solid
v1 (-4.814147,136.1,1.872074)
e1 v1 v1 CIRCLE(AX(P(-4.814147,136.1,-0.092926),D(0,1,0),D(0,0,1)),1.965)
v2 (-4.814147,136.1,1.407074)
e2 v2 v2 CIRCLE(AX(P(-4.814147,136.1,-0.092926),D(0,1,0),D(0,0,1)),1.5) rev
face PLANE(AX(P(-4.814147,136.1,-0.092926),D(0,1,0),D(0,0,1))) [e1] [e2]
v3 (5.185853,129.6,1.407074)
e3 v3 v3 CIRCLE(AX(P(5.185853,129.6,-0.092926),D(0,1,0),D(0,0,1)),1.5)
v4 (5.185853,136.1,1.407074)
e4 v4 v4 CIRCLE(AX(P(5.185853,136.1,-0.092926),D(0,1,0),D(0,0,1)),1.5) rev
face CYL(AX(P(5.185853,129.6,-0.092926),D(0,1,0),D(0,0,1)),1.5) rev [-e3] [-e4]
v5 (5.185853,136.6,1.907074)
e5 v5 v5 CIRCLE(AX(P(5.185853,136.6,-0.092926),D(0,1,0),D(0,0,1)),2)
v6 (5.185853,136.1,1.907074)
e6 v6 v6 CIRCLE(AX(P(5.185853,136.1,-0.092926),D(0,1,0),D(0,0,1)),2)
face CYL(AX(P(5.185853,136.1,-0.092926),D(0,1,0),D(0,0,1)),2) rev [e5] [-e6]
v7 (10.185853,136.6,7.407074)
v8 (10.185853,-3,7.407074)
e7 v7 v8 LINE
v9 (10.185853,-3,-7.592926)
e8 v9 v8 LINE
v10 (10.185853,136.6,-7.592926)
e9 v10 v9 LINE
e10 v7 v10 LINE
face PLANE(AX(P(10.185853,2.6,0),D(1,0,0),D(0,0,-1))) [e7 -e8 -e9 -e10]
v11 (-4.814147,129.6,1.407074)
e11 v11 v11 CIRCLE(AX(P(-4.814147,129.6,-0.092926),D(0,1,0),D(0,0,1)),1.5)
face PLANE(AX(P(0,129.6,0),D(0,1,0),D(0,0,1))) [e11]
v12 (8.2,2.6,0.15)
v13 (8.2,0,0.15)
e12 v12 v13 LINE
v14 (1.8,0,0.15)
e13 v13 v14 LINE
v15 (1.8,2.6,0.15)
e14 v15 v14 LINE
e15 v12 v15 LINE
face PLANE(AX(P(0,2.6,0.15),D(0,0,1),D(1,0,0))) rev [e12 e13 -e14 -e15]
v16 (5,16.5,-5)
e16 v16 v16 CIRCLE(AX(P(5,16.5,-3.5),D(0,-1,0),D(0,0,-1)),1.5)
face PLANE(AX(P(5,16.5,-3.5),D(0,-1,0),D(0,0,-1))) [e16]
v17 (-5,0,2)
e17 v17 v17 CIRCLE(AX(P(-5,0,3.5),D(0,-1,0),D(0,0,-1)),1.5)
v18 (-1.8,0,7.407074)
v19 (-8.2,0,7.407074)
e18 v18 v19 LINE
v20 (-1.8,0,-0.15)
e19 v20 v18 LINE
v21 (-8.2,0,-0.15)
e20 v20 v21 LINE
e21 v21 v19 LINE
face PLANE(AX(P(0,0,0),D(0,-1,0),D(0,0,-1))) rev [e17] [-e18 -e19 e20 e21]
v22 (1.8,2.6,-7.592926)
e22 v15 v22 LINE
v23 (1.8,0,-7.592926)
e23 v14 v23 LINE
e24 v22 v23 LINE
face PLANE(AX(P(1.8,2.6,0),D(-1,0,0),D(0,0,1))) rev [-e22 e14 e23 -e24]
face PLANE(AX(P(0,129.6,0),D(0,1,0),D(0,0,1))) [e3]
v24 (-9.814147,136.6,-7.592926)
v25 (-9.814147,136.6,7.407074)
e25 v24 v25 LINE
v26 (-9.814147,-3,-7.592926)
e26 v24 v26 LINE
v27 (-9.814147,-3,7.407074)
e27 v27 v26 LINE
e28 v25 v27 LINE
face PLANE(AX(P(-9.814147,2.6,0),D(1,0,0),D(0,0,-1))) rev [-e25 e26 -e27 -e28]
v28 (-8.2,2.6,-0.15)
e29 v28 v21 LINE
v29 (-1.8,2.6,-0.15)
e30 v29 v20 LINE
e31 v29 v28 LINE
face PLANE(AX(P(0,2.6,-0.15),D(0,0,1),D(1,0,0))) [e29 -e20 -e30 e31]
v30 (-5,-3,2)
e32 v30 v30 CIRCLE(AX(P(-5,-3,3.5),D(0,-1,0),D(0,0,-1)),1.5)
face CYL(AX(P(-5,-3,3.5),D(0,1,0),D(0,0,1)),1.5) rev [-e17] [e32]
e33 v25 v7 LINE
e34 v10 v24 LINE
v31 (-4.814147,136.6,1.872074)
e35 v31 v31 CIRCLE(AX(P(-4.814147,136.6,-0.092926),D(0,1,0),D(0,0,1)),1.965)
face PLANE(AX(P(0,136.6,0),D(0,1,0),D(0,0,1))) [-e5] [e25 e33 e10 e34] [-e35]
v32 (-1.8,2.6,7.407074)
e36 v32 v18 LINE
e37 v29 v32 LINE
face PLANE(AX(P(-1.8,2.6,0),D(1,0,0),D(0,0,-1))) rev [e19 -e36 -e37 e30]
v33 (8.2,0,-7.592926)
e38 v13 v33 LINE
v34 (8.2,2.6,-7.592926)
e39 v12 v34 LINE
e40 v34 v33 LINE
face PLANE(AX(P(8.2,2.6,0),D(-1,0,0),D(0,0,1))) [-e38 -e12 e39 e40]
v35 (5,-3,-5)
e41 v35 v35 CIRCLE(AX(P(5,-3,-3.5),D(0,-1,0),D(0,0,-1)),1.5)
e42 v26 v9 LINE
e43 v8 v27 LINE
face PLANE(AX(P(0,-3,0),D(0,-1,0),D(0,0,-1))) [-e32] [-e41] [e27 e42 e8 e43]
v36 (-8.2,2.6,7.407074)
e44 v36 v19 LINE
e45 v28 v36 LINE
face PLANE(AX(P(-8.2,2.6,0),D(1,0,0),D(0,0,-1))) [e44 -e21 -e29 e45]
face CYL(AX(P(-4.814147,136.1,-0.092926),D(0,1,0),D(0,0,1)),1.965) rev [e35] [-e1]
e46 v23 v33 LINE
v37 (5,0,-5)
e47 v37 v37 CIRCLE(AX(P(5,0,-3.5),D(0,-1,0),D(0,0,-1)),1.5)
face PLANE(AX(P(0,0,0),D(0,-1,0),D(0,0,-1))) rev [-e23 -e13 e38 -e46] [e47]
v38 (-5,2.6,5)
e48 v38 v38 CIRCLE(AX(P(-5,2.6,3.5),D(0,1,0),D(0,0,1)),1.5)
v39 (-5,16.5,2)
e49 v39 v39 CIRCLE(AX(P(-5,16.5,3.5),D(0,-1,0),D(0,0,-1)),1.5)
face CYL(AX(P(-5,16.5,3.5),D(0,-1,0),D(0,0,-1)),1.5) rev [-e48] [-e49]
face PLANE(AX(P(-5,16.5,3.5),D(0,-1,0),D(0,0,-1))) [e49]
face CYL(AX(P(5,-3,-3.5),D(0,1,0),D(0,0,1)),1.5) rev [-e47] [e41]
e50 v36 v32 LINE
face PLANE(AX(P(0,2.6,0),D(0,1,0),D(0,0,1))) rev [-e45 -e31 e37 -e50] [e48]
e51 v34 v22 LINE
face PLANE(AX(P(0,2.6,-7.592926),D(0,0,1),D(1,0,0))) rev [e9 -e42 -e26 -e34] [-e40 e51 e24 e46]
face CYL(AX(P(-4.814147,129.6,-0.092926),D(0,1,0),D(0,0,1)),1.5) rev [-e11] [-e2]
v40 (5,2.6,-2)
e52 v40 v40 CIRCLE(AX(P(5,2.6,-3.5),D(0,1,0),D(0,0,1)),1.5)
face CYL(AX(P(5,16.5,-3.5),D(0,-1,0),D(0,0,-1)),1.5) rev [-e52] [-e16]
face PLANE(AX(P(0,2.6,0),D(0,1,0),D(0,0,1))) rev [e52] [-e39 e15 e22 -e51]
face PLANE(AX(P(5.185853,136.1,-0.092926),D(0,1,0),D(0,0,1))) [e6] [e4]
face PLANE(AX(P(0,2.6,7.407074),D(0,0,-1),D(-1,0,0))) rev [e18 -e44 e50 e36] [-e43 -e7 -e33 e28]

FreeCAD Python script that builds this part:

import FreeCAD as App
import Part
import Sketcher
from FreeCAD import Vector
Q = App.Units.Quantity


def add_polygon(sketch, points):
    """Adds a closed chain of lines whose ends are joined by coincident constraints."""
    first, n = sketch.GeometryCount, len(points)
    for a, b in zip(points, points[1:] + points[:1]):
        sketch.addGeometry(Part.LineSegment(App.Vector(*a, 0), App.Vector(*b, 0)), False)
    for i in range(n):
        sketch.addConstraint(Sketcher.Constraint("Coincident", first + i, 2, first + (i + 1) % n, 1))

doc = App.newDocument("Part")
body = doc.addObject("PartDesign::Body", "Body")

# Sketch on XZ plane
sketch1 = body.newObject("Sketcher::SketchObject", "Sketch")
sketch1.AttachmentSupport = (doc.getObject("XZ_Plane"), [""])
sketch1.MapMode = "FlatFace"
add_polygon(sketch1, [(-8.2, 7.407074), (-8.2, -0.15), (-1.8, -0.15), (-1.8, 7.407074), (10.185853, 7.407074), (10.185853, -7.592926), (8.2, -7.592926), (8.2, 0.15), (1.8, 0.15), (1.8, -7.592926), (-9.814147, -7.592926), (-9.814147, 7.407074)])  # lines 0-11
sketch1.addConstraint([
    Sketcher.Constraint("Vertical", 0),
    Sketcher.Constraint("Horizontal", 1),
    Sketcher.Constraint("Vertical", 2),
    Sketcher.Constraint("Horizontal", 3),
    Sketcher.Constraint("Vertical", 4),
    Sketcher.Constraint("Horizontal", 5),
    Sketcher.Constraint("Vertical", 6),
    Sketcher.Constraint("Horizontal", 7),
    Sketcher.Constraint("Vertical", 8),
    Sketcher.Constraint("Horizontal", 9),
    Sketcher.Constraint("Vertical", 10),
    Sketcher.Constraint("Horizontal", 11),
    Sketcher.Constraint("Symmetric", 0, 2, 6, 2, -1, 1),
    Sketcher.Constraint("Horizontal", 5, 2, 8, 2),
    Sketcher.Constraint("Horizontal", 3, 2, 10, 2),
    Sketcher.Constraint("Equal", 1, 7),
    Sketcher.Constraint("DistanceY", 4, 2, 4, 1, Q("15 mm")),
    Sketcher.Constraint("DistanceX", 1, 1, 1, 2, Q("6.4 mm")),
    Sketcher.Constraint("DistanceX", 1, 2, 5, 2, Q("10 mm")),
    Sketcher.Constraint("DistanceY", 1, 2, 6, 2, Q("0.3 mm")),
    Sketcher.Constraint("DistanceX", 3, 1, 3, 2, Q("11.985853 mm")),
    Sketcher.Constraint("DistanceX", 9, 2, 9, 1, Q("11.614147 mm")),
    Sketcher.Constraint("DistanceY", 0, 2, 0, 1, Q("7.557074 mm")),
])
pad1 = body.newObject("PartDesign::Pad", "Pad")
pad1.Profile = sketch1
pad1.Length = 2.6
pad1.Reversed = True

# Sketch on XZ plane
sketch2 = body.newObject("Sketcher::SketchObject", "Sketch001")
sketch2.AttachmentSupport = (doc.getObject("XZ_Plane"), [""])
sketch2.MapMode = "FlatFace"
add_polygon(sketch2, [(-9.814147, 7.407074), (-9.814147, -7.592926), (10.185853, -7.592926), (10.185853, 7.407074)])  # lines 0-3
sketch2.addGeometry(Part.Circle(Vector(5, -3.5, 0), Vector(0, 0, 1), 1.5), False)  # 4
sketch2.addGeometry(Part.Circle(Vector(-5, 3.5, 0), Vector(0, 0, 1), 1.5), False)  # 5
sketch2.addConstraint([
    Sketcher.Constraint("Vertical", 0),
    Sketcher.Constraint("Horizontal", 1),
    Sketcher.Constraint("Vertical", 2),
    Sketcher.Constraint("Horizontal", 3),
    Sketcher.Constraint("Equal", 4, 5),
    Sketcher.Constraint("Symmetric", 4, 3, 5, 3, -1, 1),
    Sketcher.Constraint("Diameter", 4, Q("3 mm")),
    Sketcher.Constraint("DistanceX", 1, 1, 1, 2, Q("20 mm")),
    Sketcher.Constraint("DistanceY", 0, 2, 0, 1, Q("15 mm")),
    Sketcher.Constraint("DistanceX", -1, 1, 4, 3, Q("5 mm")),
    Sketcher.Constraint("DistanceY", 4, 3, 5, 3, Q("7 mm")),
    Sketcher.Constraint("DistanceX", 0, 2, -1, 1, Q("9.814147 mm")),
    Sketcher.Constraint("DistanceY", 0, 2, -1, 1, Q("7.592926 mm")),
])
pad2 = body.newObject("PartDesign::Pad", "Pad001")
pad2.Profile = sketch2
pad2.Length = 3

# Sketch on XZ plane
sketch3 = body.newObject("Sketcher::SketchObject", "Sketch002")
sketch3.AttachmentSupport = (doc.getObject("XZ_Plane"), [""])
sketch3.MapMode = "FlatFace"
sketch3.AttachmentOffset = App.Placement(Vector(0, 0, -2.6), App.Rotation())
add_polygon(sketch3, [(10.185853, 7.407074), (10.185853, -7.592926), (-9.814147, -7.592926), (-9.814147, 7.407074)])  # lines 0-3
sketch3.addConstraint([
    Sketcher.Constraint("Vertical", 0),
    Sketcher.Constraint("Horizontal", 1),
    Sketcher.Constraint("Vertical", 2),
    Sketcher.Constraint("Horizontal", 3),
    Sketcher.Constraint("DistanceX", 1, 2, 1, 1, Q("20 mm")),
    Sketcher.Constraint("DistanceY", 0, 2, 0, 1, Q("15 mm")),
    Sketcher.Constraint("DistanceX", -1, 1, 0, 2, Q("10.185853 mm")),
    Sketcher.Constraint("DistanceY", 0, 2, -1, 1, Q("7.592926 mm")),
])
pad3 = body.newObject("PartDesign::Pad", "Pad002")
pad3.Profile = sketch3
pad3.Length = 134
pad3.Reversed = True

# Sketch on XZ plane
sketch4 = body.newObject("Sketcher::SketchObject", "Sketch003")
sketch4.AttachmentSupport = (doc.getObject("XZ_Plane"), [""])
sketch4.MapMode = "FlatFace"
sketch4.AttachmentOffset = App.Placement(Vector(0, 0, 3), App.Rotation())
sketch4.addGeometry([
    Part.Circle(Vector(-5, 3.5, 0), Vector(0, 0, 1), 1.5),
    Part.Circle(Vector(5, -3.5, 0), Vector(0, 0, 1), 1.5),
], False)
sketch4.addConstraint([
    Sketcher.Constraint("Equal", 0, 1),
    Sketcher.Constraint("Symmetric", 0, 3, 1, 3, -1, 1),
    Sketcher.Constraint("Diameter", 0, Q("3 mm")),
    Sketcher.Constraint("DistanceX", 0, 3, -1, 1, Q("5 mm")),
    Sketcher.Constraint("DistanceY", 1, 3, 0, 3, Q("7 mm")),
])
pocket1 = body.newObject("PartDesign::Pocket", "Pocket")
pocket1.Profile = sketch4
pocket1.Length = 19.5

# Sketch on XZ plane
sketch5 = body.newObject("Sketcher::SketchObject", "Sketch004")
sketch5.AttachmentSupport = (doc.getObject("XZ_Plane"), [""])
sketch5.MapMode = "FlatFace"
sketch5.AttachmentOffset = App.Placement(Vector(0, 0, -136.6), App.Rotation())
sketch5.addGeometry([
    Part.Circle(Vector(-4.814147, -0.092926, 0), Vector(0, 0, 1), 1.5),
    Part.Circle(Vector(5.185853, -0.092926, 0), Vector(0, 0, 1), 1.5),
], False)
sketch5.addConstraint([
    Sketcher.Constraint("Equal", 0, 1),
    Sketcher.Constraint("Horizontal", 0, 3, 1, 3),
    Sketcher.Constraint("Diameter", 0, Q("3 mm")),
    Sketcher.Constraint("DistanceX", 0, 3, 1, 3, Q("10 mm")),
    Sketcher.Constraint("DistanceX", 0, 3, -1, 1, Q("4.814147 mm")),
    Sketcher.Constraint("DistanceY", 0, 3, -1, 1, Q("0.092926 mm")),
])
pocket2 = body.newObject("PartDesign::Pocket", "Pocket001")
pocket2.Profile = sketch5
pocket2.Length = 7
pocket2.Reversed = True

# Sketch on XZ plane
sketch6 = body.newObject("Sketcher::SketchObject", "Sketch005")
sketch6.AttachmentSupport = (doc.getObject("XZ_Plane"), [""])
sketch6.MapMode = "FlatFace"
sketch6.AttachmentOffset = App.Placement(Vector(0, 0, -136.6), App.Rotation())
sketch6.addGeometry([
    Part.Circle(Vector(-4.814147, -0.092926, 0), Vector(0, 0, 1), 1.965),
    Part.Circle(Vector(5.185853, -0.092926, 0), Vector(0, 0, 1), 2),
], False)
sketch6.addConstraint([
    Sketcher.Constraint("Horizontal", 0, 3, 1, 3),
    Sketcher.Constraint("Diameter", 1, Q("4 mm")),
    Sketcher.Constraint("Diameter", 0, Q("3.93 mm")),
    Sketcher.Constraint("DistanceX", 0, 3, 1, 3, Q("10 mm")),
    Sketcher.Constraint("DistanceX", 0, 3, -1, 1, Q("4.814147 mm")),
    Sketcher.Constraint("DistanceY", 0, 3, -1, 1, Q("0.092926 mm")),
])
pocket3 = body.newObject("PartDesign::Pocket", "Pocket002")
pocket3.Profile = sketch6
pocket3.Length = 0.5
pocket3.Reversed = True

doc.recompute()
